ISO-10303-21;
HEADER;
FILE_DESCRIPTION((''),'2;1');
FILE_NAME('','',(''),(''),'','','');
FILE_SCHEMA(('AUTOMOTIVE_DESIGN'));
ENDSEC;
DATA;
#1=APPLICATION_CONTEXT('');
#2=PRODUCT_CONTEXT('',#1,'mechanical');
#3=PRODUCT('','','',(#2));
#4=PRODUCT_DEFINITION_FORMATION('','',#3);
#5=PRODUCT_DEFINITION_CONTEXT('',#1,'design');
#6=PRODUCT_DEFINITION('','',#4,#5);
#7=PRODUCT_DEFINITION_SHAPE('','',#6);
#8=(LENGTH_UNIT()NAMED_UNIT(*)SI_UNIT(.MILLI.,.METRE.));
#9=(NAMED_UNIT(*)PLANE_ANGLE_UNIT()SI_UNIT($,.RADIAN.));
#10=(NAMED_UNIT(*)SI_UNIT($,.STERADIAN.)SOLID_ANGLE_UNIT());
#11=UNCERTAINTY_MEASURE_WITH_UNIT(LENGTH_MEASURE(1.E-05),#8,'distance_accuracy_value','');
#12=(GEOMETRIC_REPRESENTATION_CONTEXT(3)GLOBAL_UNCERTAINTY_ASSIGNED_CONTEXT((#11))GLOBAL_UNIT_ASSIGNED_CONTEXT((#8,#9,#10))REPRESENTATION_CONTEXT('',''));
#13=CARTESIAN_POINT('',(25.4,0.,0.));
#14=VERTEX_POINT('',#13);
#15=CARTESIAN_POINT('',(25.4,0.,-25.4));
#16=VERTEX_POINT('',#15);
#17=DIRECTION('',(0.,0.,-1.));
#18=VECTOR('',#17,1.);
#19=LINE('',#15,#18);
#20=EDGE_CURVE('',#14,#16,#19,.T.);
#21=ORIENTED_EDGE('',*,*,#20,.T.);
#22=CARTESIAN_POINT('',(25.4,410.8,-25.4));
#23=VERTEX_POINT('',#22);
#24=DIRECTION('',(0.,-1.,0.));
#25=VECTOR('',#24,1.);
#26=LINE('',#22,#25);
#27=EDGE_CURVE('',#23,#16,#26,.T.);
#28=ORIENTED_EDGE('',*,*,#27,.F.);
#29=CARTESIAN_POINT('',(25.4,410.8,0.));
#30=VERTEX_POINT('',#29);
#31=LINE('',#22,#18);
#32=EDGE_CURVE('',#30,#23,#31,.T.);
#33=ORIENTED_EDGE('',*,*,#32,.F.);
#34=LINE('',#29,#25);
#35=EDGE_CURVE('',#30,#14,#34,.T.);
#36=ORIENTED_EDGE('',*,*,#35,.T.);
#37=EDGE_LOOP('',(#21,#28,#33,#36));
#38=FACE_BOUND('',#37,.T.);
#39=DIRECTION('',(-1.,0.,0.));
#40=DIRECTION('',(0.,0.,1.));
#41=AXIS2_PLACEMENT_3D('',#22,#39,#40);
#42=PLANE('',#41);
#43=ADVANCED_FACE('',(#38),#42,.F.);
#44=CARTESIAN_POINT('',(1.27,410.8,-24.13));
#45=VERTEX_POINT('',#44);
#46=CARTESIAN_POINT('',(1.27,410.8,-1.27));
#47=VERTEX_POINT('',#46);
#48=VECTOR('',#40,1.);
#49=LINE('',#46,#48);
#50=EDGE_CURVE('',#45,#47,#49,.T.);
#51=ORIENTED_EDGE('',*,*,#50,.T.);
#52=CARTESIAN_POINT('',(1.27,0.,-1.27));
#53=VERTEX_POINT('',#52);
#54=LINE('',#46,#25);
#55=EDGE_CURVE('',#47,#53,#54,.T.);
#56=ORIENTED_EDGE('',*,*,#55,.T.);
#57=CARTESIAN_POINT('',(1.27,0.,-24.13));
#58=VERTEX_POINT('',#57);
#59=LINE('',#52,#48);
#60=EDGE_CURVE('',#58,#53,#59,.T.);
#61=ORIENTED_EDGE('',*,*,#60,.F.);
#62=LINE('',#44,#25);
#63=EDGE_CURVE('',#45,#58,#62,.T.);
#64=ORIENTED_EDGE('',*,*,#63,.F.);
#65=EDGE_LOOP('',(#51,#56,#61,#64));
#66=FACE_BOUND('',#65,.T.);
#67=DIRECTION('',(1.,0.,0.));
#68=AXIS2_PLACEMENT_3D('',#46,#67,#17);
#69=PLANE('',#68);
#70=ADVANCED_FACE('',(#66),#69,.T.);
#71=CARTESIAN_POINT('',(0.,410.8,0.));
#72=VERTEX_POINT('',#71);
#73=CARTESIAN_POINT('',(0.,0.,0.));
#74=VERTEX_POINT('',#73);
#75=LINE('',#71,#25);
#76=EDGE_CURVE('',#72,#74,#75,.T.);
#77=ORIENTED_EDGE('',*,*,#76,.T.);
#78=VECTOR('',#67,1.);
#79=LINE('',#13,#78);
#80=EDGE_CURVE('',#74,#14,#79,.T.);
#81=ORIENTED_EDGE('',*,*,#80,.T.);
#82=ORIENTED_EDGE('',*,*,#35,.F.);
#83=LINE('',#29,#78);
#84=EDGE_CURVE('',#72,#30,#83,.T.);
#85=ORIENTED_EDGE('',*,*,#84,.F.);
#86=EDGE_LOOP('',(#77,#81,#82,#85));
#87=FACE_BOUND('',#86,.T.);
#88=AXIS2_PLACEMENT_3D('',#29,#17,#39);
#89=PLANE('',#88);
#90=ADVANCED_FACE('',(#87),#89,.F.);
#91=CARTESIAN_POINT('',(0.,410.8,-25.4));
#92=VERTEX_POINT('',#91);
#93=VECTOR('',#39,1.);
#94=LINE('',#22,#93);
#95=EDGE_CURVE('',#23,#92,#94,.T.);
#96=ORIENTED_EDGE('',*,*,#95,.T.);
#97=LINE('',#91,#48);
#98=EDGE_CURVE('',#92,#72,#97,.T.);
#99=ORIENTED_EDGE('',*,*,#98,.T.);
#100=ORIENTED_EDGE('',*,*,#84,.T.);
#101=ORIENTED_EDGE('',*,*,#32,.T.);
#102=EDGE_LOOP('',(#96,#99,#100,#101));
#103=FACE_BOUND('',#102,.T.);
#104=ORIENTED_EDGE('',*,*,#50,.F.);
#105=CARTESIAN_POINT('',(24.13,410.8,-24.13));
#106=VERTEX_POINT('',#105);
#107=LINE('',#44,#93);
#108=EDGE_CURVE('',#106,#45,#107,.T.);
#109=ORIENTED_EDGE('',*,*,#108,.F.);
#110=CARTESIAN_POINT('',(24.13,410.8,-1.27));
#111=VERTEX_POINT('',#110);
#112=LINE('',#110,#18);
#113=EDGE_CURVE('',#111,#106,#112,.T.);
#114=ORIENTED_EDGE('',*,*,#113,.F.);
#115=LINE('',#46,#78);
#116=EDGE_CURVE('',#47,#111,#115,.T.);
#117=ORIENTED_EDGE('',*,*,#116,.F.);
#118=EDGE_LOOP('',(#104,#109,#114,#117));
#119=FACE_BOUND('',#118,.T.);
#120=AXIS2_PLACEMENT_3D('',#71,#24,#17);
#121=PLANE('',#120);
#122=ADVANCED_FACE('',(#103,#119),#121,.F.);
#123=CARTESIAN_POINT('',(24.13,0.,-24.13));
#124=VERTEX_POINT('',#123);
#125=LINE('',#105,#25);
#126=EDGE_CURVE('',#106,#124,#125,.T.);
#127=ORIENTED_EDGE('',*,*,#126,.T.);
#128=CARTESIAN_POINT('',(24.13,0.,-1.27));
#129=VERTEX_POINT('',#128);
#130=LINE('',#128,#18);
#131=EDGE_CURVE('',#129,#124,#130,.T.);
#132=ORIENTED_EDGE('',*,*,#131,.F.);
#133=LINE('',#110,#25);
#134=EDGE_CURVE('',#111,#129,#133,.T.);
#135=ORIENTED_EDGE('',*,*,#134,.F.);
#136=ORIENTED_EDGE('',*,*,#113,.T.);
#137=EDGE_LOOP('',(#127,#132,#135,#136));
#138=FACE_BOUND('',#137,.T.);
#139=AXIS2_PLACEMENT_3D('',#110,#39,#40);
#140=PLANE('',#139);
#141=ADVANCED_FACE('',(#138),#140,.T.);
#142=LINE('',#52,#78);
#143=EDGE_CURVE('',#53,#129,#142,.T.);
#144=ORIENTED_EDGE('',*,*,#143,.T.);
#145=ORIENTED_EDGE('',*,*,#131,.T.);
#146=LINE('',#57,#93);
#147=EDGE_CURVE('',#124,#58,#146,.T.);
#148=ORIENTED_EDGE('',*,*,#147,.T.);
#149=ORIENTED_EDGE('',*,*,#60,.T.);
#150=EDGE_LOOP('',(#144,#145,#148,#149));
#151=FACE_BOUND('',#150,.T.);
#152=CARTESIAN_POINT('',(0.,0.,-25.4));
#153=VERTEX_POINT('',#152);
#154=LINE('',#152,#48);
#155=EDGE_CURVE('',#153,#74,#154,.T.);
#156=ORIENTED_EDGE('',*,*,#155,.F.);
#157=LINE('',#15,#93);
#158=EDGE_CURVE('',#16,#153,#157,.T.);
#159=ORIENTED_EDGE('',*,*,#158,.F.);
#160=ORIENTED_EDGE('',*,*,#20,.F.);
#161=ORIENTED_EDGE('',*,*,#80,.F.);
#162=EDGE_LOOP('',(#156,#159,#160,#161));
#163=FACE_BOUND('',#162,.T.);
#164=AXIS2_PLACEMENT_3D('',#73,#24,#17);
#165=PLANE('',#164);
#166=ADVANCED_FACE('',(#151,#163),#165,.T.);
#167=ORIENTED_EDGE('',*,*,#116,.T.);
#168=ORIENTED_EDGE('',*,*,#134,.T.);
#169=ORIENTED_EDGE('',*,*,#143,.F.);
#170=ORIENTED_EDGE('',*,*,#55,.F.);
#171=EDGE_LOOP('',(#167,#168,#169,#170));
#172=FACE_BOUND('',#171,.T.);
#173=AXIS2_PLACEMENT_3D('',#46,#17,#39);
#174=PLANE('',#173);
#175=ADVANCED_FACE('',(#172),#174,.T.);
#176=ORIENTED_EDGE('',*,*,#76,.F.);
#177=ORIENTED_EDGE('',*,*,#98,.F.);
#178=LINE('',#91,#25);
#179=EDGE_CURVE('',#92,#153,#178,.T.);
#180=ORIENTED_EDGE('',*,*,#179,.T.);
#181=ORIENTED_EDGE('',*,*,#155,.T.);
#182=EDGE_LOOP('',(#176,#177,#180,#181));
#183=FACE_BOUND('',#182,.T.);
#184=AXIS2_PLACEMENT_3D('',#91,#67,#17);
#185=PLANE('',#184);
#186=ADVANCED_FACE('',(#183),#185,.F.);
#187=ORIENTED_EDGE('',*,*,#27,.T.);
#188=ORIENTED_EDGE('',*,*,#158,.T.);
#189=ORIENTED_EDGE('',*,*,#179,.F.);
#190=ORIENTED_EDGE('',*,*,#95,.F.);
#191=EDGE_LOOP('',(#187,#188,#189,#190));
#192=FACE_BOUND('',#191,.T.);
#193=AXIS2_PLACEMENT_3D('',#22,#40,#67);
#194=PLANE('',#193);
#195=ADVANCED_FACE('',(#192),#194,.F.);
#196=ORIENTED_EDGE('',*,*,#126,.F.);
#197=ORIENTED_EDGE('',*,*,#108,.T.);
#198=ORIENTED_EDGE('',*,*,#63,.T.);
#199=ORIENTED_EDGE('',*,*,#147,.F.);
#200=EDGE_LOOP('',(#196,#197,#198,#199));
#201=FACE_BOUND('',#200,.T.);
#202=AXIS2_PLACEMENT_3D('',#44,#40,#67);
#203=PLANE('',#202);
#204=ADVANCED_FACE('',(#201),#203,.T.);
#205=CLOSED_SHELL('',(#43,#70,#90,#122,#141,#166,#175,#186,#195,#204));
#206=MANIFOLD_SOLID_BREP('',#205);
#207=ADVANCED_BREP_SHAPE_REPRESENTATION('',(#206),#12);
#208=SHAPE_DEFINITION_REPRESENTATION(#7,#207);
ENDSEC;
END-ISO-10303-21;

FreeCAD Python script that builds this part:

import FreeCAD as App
import Part
import Sketcher
Q = App.Units.Quantity

doc = App.newDocument("Part")
body = doc.addObject("PartDesign::Body", "Body")

# Sketch on XZ plane
sketch1 = body.newObject("Sketcher::SketchObject", "Sketch")
sketch1.AttachmentSupport = (doc.getObject("XZ_Plane"), [""])
sketch1.MapMode = "FlatFace"
sketch1.addGeometry([
    Part.LineSegment(App.Vector(0, -25, 0), App.Vector(0, 0, 0)),  # 0
    Part.LineSegment(App.Vector(0, 0, 0), App.Vector(25, 0, 0)),  # 1
    Part.LineSegment(App.Vector(25, 0, 0), App.Vector(25, -25, 0)),  # 2
    Part.LineSegment(App.Vector(25, -25, 0), App.Vector(0, -25, 0)),  # 3
    Part.LineSegment(App.Vector(24, -1, 0), App.Vector(1, -1, 0)),  # 4
    Part.LineSegment(App.Vector(1, -1, 0), App.Vector(1, -24, 0)),  # 5
    Part.LineSegment(App.Vector(1, -24, 0), App.Vector(24, -24, 0)),  # 6
    Part.LineSegment(App.Vector(24, -24, 0), App.Vector(24, -1, 0)),  # 7
], False)
sketch1.addConstraint([
    Sketcher.Constraint("Coincident", 0, 2, 1, 1),
    Sketcher.Constraint("Coincident", 1, 2, 2, 1),
    Sketcher.Constraint("Coincident", 2, 2, 3, 1),
    Sketcher.Constraint("Coincident", 3, 2, 0, 1),
    Sketcher.Constraint("Coincident", 4, 2, 5, 1),
    Sketcher.Constraint("Coincident", 5, 2, 6, 1),
    Sketcher.Constraint("Coincident", 6, 2, 7, 1),
    Sketcher.Constraint("Coincident", 7, 2, 4, 1),
    Sketcher.Constraint("Vertical", 0),
    Sketcher.Constraint("Horizontal", 1),
    Sketcher.Constraint("Vertical", 2),
    Sketcher.Constraint("Horizontal", 3),
    Sketcher.Constraint("Horizontal", 4),
    Sketcher.Constraint("Vertical", 5),
    Sketcher.Constraint("Horizontal", 6),
    Sketcher.Constraint("Vertical", 7),
    Sketcher.Constraint("Coincident", 0, 2, -1, 1),
    Sketcher.Constraint("Equal", 3, 0),
    Sketcher.Constraint("Equal", 6, 5),
    Sketcher.Constraint("DistanceX", 1, 1, 1, 2, Q("1 in")),
    Sketcher.Constraint("DistanceX", 4, 2, 4, 1, Q("0.9 in")),
    Sketcher.Constraint("DistanceX", -1, 1, 4, 2, Q("0.05 in")),
    Sketcher.Constraint("DistanceY", 4, 2, -1, 1, Q("0.05 in")),
])
pad1 = body.newObject("PartDesign::Pad", "Pad")
pad1.Profile = sketch1
pad1.Length = 410.8
pad1.Reversed = True

doc.recompute()
